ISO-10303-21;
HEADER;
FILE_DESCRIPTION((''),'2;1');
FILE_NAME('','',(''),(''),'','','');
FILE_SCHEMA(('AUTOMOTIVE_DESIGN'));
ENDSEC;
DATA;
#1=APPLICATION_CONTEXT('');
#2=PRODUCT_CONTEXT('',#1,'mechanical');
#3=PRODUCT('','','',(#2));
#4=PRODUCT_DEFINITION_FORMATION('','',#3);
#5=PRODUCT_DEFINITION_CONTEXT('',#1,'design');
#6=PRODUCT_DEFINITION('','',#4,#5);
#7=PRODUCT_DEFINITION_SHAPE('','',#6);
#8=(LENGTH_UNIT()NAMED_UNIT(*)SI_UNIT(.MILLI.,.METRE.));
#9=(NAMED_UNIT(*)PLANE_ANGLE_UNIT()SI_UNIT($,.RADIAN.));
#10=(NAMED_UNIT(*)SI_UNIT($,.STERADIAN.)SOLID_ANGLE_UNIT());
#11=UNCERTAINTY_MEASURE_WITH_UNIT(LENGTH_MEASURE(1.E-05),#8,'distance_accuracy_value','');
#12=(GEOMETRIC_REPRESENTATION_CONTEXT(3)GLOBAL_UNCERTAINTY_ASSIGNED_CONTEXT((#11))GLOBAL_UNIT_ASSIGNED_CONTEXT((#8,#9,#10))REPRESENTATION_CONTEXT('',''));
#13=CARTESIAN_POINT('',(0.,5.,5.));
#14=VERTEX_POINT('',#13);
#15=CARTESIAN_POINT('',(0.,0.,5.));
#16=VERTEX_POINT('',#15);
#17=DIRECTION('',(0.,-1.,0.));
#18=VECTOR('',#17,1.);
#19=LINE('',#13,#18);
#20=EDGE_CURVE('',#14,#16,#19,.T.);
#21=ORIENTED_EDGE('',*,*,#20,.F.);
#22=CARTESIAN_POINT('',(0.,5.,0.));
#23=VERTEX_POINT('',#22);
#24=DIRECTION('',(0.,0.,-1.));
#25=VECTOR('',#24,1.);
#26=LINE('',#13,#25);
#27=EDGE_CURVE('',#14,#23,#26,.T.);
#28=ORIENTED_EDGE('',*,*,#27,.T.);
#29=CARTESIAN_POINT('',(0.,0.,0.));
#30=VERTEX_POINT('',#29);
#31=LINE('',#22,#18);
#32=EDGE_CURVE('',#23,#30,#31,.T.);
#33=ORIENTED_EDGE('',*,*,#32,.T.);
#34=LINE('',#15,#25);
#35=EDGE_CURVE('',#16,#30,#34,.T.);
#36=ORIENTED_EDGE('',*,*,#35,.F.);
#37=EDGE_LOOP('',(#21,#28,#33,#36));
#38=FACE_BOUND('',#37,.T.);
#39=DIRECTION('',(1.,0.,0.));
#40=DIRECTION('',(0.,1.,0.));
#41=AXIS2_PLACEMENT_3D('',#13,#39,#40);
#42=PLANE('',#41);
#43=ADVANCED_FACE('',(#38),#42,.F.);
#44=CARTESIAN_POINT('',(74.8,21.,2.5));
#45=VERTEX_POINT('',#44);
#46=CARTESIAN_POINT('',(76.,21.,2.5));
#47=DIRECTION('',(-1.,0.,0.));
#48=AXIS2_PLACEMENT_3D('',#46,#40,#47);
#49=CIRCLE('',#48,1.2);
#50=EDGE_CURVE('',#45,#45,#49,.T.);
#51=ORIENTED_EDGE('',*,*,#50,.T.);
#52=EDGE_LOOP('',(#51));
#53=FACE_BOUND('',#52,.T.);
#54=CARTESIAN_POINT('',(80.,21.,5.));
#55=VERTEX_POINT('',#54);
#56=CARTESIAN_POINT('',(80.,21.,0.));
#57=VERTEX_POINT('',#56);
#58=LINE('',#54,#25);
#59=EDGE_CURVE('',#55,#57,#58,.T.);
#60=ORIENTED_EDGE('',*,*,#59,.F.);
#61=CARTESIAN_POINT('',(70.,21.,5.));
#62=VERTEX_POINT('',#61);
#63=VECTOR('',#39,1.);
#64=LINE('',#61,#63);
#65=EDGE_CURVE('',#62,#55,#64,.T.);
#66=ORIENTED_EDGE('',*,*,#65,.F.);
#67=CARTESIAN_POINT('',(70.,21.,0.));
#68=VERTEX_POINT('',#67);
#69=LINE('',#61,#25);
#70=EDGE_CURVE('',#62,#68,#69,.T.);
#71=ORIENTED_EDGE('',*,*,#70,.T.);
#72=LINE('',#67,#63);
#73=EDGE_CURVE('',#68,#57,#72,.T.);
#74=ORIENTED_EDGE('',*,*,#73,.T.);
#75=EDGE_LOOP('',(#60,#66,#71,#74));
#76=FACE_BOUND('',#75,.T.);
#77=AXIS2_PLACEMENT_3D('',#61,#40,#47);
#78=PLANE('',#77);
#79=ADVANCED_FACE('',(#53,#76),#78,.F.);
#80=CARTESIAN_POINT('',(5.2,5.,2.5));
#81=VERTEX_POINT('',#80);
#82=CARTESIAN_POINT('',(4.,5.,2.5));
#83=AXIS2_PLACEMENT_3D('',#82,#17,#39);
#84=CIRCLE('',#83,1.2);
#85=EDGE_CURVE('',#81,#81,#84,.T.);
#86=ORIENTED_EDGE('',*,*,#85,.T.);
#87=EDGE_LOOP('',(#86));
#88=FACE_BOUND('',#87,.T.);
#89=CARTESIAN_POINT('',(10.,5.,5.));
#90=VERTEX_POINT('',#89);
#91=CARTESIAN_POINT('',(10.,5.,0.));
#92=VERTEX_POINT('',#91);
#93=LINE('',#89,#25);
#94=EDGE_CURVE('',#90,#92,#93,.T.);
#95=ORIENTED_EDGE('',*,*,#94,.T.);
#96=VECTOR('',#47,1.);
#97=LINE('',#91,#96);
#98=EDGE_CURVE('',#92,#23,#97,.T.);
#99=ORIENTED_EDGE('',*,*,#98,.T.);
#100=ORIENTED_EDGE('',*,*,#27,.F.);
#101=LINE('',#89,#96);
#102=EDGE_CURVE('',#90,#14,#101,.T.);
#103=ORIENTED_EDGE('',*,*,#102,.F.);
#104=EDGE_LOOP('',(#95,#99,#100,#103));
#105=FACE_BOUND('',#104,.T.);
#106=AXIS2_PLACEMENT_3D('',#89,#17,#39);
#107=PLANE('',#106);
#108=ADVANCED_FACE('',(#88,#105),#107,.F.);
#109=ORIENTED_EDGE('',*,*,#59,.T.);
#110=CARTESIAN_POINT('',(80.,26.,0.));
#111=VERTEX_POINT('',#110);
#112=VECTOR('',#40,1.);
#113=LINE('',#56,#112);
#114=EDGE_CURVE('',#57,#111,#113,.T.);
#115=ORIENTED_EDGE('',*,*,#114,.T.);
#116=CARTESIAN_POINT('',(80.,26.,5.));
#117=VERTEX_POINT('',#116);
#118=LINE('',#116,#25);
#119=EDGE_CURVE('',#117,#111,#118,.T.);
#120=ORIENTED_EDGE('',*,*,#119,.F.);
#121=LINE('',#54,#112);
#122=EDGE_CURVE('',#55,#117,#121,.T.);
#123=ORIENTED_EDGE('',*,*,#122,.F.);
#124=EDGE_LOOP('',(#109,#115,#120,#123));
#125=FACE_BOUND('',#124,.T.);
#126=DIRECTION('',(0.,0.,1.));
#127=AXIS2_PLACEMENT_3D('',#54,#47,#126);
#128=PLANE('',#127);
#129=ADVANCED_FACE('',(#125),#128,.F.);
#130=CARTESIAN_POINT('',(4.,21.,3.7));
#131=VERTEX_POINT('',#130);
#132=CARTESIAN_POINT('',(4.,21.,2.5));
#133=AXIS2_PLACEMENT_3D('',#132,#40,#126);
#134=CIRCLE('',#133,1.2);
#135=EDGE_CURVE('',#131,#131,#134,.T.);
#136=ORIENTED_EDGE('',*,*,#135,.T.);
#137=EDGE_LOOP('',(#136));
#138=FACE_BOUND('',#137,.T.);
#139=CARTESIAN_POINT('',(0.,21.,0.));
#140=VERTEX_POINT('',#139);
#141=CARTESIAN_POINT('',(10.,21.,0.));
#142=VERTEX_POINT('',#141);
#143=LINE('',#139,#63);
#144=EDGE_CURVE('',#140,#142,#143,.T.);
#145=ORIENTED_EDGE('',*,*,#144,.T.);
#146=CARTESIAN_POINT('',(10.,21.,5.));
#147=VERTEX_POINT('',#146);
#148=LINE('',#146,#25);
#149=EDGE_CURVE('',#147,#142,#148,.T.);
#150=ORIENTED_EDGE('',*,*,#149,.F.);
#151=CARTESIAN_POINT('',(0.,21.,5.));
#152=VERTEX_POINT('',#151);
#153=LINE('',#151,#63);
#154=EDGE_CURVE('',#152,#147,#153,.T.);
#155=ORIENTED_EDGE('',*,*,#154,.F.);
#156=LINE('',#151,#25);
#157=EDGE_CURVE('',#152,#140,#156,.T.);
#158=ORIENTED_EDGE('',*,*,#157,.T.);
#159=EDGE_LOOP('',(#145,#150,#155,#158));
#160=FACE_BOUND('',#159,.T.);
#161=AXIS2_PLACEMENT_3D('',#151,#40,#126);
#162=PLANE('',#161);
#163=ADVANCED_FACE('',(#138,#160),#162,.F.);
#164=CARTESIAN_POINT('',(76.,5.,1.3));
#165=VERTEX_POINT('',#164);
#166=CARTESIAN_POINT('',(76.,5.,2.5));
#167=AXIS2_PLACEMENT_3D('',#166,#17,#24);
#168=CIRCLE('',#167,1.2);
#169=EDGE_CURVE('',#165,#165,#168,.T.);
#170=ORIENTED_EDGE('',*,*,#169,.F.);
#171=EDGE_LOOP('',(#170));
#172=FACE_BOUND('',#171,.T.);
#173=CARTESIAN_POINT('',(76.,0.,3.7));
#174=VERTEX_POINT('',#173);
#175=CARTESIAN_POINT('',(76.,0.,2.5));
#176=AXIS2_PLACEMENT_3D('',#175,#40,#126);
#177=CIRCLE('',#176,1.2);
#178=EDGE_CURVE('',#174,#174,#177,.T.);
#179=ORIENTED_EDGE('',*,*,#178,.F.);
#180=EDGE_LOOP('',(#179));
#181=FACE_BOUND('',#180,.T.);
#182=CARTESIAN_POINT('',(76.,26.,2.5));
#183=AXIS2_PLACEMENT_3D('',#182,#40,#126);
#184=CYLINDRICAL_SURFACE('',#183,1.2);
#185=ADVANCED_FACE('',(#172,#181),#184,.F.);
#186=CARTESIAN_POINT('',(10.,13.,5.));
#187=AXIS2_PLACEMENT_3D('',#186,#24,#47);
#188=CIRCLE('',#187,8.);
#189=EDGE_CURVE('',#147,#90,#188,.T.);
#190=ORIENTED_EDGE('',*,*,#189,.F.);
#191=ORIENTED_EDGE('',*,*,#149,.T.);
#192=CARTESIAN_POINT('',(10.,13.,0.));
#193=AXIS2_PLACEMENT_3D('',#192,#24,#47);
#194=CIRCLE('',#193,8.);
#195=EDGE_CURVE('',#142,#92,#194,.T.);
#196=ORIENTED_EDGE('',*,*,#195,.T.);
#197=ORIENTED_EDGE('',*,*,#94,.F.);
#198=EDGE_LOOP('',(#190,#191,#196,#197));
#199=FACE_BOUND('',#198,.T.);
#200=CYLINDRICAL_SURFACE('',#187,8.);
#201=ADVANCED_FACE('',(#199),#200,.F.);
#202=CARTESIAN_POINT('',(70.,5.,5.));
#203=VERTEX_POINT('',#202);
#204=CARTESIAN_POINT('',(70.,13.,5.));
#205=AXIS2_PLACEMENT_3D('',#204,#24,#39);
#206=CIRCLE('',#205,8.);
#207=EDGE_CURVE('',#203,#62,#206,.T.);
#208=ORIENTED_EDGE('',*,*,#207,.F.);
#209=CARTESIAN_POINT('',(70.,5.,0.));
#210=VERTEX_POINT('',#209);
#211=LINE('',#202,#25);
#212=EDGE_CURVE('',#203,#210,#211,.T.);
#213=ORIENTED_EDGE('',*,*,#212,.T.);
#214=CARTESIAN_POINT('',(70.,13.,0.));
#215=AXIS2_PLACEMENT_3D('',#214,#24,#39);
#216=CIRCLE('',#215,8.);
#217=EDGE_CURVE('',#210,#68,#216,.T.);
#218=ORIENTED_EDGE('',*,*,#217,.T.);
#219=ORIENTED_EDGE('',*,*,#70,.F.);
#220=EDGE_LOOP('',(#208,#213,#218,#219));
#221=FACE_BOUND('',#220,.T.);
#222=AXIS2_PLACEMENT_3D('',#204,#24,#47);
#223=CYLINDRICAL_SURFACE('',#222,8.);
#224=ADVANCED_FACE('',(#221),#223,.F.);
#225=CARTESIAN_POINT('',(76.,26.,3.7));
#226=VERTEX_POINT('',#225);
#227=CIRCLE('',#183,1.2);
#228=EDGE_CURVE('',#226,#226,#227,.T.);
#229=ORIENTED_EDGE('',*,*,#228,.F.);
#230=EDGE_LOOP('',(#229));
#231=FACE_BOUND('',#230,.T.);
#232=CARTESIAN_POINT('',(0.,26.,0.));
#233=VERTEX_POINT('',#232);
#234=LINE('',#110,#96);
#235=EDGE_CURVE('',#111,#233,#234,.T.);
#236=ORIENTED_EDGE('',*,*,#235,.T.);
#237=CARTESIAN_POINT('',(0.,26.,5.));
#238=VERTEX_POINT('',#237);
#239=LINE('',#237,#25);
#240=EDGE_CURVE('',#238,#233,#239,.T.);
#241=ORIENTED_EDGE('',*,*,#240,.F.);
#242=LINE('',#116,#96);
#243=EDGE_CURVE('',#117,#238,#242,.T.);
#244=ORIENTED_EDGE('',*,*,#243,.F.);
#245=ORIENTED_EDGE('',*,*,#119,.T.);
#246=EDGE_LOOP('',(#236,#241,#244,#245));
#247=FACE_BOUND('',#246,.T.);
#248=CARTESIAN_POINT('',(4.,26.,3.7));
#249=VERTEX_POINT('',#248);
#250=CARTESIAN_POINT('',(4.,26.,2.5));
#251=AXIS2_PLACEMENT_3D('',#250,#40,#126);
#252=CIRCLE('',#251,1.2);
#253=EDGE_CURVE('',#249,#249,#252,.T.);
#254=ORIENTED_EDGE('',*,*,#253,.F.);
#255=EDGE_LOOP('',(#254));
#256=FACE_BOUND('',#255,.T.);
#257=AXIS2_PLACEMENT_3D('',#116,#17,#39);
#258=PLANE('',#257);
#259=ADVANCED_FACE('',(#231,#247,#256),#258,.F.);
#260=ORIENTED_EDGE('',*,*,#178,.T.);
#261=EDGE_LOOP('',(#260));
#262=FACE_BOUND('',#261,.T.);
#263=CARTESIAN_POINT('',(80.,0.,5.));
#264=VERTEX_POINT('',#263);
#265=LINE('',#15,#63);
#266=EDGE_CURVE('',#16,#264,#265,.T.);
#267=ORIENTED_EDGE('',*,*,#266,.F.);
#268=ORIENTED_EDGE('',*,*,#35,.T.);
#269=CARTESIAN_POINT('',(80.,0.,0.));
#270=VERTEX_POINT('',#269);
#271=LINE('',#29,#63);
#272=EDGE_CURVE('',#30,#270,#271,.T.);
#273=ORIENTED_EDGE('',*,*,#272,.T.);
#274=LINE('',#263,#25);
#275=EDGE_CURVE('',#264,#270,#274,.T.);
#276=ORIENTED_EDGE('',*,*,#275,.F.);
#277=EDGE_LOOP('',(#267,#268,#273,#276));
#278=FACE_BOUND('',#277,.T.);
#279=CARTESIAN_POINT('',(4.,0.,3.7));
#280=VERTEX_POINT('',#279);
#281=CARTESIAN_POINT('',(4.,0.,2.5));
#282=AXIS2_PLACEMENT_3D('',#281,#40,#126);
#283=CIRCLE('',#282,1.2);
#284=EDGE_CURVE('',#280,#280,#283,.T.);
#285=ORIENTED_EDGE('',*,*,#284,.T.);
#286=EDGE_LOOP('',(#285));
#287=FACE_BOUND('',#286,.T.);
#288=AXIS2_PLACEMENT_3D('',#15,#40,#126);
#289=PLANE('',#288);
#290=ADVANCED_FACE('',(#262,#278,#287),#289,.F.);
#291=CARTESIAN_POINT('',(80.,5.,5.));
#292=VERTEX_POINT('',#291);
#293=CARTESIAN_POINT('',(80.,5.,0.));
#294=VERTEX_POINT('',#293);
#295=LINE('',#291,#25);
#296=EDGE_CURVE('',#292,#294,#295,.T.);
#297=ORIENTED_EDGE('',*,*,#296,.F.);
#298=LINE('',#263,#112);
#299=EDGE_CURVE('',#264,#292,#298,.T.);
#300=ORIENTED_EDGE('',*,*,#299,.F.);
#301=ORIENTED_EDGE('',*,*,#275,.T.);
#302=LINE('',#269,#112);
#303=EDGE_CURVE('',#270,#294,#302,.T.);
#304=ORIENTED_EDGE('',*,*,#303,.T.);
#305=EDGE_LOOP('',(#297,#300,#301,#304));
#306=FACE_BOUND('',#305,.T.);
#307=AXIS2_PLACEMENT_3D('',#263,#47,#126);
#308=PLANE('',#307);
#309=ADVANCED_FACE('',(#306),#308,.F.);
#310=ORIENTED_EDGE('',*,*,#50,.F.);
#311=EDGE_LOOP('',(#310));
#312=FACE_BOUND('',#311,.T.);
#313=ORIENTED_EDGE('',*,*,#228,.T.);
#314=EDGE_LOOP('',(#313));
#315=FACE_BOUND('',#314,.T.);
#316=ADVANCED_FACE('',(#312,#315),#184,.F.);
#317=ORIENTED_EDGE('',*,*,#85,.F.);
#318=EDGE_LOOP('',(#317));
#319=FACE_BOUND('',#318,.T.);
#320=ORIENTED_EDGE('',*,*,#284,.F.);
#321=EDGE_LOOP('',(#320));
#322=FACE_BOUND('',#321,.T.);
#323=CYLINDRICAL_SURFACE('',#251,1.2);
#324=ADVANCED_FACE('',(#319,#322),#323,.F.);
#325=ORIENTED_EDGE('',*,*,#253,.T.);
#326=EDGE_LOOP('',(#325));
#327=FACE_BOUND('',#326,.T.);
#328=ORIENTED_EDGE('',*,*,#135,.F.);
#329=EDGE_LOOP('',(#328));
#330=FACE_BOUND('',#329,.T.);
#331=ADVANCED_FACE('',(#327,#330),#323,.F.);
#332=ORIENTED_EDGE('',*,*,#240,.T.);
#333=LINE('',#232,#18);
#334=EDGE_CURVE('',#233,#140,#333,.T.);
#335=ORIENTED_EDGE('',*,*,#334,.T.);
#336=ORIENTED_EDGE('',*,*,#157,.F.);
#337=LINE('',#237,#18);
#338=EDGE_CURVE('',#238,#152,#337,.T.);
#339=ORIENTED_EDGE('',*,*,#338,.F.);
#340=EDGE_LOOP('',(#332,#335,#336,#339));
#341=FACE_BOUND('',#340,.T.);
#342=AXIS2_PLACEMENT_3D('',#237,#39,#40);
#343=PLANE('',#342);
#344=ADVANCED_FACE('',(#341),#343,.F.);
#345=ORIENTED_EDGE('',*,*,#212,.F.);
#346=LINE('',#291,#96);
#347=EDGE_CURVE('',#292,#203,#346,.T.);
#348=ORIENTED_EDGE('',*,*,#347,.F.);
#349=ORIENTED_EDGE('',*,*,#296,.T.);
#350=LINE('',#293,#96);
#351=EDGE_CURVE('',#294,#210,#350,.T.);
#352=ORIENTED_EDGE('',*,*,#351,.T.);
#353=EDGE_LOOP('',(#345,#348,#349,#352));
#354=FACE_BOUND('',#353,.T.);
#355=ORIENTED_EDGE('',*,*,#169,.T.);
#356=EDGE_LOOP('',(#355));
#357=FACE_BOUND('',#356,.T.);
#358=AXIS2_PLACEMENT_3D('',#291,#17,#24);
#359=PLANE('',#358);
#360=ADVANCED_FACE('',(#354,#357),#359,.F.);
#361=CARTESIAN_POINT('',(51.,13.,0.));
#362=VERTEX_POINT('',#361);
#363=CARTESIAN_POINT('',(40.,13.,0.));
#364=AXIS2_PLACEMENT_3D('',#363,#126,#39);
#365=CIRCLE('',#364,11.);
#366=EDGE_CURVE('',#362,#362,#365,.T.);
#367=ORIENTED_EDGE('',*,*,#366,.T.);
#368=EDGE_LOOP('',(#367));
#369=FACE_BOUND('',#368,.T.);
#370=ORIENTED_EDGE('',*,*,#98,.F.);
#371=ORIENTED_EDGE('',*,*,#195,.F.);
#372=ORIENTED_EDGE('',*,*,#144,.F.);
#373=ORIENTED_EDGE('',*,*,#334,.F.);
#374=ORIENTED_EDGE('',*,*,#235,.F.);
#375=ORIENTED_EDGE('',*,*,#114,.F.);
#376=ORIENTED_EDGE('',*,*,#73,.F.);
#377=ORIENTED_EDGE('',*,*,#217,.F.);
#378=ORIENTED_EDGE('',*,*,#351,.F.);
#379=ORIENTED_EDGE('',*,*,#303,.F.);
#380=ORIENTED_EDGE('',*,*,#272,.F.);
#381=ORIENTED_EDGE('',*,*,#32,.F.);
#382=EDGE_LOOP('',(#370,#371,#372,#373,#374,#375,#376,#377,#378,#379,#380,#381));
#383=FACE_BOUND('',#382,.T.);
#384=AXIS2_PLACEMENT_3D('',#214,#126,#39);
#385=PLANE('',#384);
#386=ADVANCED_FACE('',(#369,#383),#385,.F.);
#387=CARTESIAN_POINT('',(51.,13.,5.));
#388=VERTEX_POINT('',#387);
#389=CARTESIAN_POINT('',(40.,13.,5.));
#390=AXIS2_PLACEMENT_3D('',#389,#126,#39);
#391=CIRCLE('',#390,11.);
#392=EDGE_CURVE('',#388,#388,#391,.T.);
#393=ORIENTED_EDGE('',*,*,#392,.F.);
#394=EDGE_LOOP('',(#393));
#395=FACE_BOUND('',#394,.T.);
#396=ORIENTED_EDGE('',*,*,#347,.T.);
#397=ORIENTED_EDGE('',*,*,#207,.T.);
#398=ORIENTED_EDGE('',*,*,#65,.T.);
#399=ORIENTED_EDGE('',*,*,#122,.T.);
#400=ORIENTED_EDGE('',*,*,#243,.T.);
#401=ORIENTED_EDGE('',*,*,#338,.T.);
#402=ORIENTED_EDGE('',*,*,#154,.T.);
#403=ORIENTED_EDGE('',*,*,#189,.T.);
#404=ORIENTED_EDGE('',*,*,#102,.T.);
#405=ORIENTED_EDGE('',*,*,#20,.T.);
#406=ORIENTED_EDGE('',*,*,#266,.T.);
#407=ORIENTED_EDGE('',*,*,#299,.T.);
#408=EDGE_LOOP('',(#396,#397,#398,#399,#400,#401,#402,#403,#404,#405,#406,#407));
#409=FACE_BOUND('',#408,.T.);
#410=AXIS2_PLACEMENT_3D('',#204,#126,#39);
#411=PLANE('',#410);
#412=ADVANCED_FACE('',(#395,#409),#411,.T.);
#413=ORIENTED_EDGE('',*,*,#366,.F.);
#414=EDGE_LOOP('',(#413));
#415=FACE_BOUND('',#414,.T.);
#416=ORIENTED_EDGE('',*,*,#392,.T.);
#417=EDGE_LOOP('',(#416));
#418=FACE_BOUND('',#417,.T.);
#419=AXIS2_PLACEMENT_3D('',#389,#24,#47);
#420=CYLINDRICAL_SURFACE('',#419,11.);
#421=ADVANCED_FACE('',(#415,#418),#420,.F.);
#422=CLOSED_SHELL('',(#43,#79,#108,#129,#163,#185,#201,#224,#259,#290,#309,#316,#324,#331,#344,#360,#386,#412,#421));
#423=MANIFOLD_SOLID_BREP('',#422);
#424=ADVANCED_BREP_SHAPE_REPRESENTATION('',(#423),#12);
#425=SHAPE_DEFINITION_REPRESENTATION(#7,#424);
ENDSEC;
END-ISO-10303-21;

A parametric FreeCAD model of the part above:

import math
import FreeCAD as App
import Part
import Sketcher
from FreeCAD import Vector

doc = App.newDocument("Part")
body = doc.addObject("PartDesign::Body", "Body")

# Sketch on XY plane
sketch1 = doc.addObject("Sketcher::SketchObject", "Sketch")
body.addObject(sketch1)
sketch1.AttachmentSupport = (doc.XY_Plane, [""])
sketch1.MapMode = "FlatFace"
sketch1.addGeometry(Part.LineSegment(Vector(0, 0, 0), Vector(80, 0, 0)), False)
sketch1.addGeometry(Part.LineSegment(Vector(80, 0, 0), Vector(80, 5, 0)), False)
sketch1.addGeometry(Part.LineSegment(Vector(80, 5, 0), Vector(70, 5, 0)), False)
sketch1.addGeometry(Part.ArcOfCircle(Part.Circle(Vector(70, 13, 0), Vector(0, 0, 1), 8), math.radians(90), math.radians(270)), False)
sketch1.addGeometry(Part.LineSegment(Vector(70, 21, 0), Vector(80, 21, 0)), False)
sketch1.addGeometry(Part.LineSegment(Vector(80, 21, 0), Vector(80, 26, 0)), False)
sketch1.addGeometry(Part.LineSegment(Vector(80, 26, 0), Vector(0, 26, 0)), False)
sketch1.addGeometry(Part.LineSegment(Vector(0, 26, 0), Vector(0, 21, 0)), False)
sketch1.addGeometry(Part.LineSegment(Vector(0, 21, 0), Vector(10, 21, 0)), False)
sketch1.addGeometry(Part.ArcOfCircle(Part.Circle(Vector(10, 13, 0), Vector(0, 0, 1), 8), math.radians(-90), math.radians(90)), False)
sketch1.addGeometry(Part.LineSegment(Vector(10, 5, 0), Vector(0, 5, 0)), False)
sketch1.addGeometry(Part.LineSegment(Vector(0, 5, 0), Vector(0, 0, 0)), False)
sketch1.addGeometry(Part.Circle(Vector(40, 13, 0), Vector(0, 0, 1), 11), False)
sketch1.addConstraint(Sketcher.Constraint("Coincident", 0, 2, 1, 1))
sketch1.addConstraint(Sketcher.Constraint("Coincident", 1, 2, 2, 1))
sketch1.addConstraint(Sketcher.Constraint("Tangent", 2, 2, 3, 2))
sketch1.addConstraint(Sketcher.Constraint("Tangent", 3, 1, 4, 1))
sketch1.addConstraint(Sketcher.Constraint("Coincident", 4, 2, 5, 1))
sketch1.addConstraint(Sketcher.Constraint("Coincident", 5, 2, 6, 1))
sketch1.addConstraint(Sketcher.Constraint("Coincident", 6, 2, 7, 1))
sketch1.addConstraint(Sketcher.Constraint("Coincident", 7, 2, 8, 1))
sketch1.addConstraint(Sketcher.Constraint("Tangent", 8, 2, 9, 2))
sketch1.addConstraint(Sketcher.Constraint("Tangent", 9, 1, 10, 1))
sketch1.addConstraint(Sketcher.Constraint("Coincident", 10, 2, 11, 1))
sketch1.addConstraint(Sketcher.Constraint("Coincident", 11, 2, 0, 1))
sketch1.addConstraint(Sketcher.Constraint("Horizontal", 0))
sketch1.addConstraint(Sketcher.Constraint("Vertical", 1))
sketch1.addConstraint(Sketcher.Constraint("Horizontal", 2))
sketch1.addConstraint(Sketcher.Constraint("Horizontal", 4))
sketch1.addConstraint(Sketcher.Constraint("Vertical", 5))
sketch1.addConstraint(Sketcher.Constraint("Horizontal", 6))
sketch1.addConstraint(Sketcher.Constraint("Vertical", 7))
sketch1.addConstraint(Sketcher.Constraint("Horizontal", 8))
sketch1.addConstraint(Sketcher.Constraint("Horizontal", 10))
sketch1.addConstraint(Sketcher.Constraint("Vertical", 11))
sketch1.addConstraint(Sketcher.Constraint("Coincident", 11, 2, -1, 1))
sketch1.addConstraint(Sketcher.Constraint("Equal", 3, 9))
sketch1.addConstraint(Sketcher.Constraint("PointOnObject", 6, 2, -2))
sketch1.addConstraint(Sketcher.Constraint("Horizontal", 3, 3, 9, 3))
sketch1.addConstraint(Sketcher.Constraint("Horizontal", 9, 3, 12, 3))
sketch1.addConstraint(Sketcher.Constraint("Vertical", 1, 2, 4, 2))
sketch1.addConstraint(Sketcher.Constraint("Equal", 4, 8))
sketch1.addConstraint(Sketcher.Constraint("Equal", 1, 5))
sketch1.addConstraint(Sketcher.Constraint("Diameter", 12, 22.0))
sketch1.addConstraint(Sketcher.Constraint("Radius", 3, 8.0))
sketch1.addConstraint(Sketcher.Constraint("DistanceX", 0, 1, 0, 2, 80.0))
sketch1.addConstraint(Sketcher.Constraint("DistanceX", 2, 2, 2, 1, 10.0))
sketch1.addConstraint(Sketcher.Constraint("DistanceY", 1, 1, 1, 2, 5.0))
sketch1.addConstraint(Sketcher.Constraint("DistanceX", -1, 1, 12, 3, 40.0))
pad1 = doc.addObject("PartDesign::Pad", "Pad")
body.addObject(pad1)
pad1.Profile = sketch1
pad1.Length = 5

# Sketch on XZ plane
sketch2 = doc.addObject("Sketcher::SketchObject", "Sketch001")
body.addObject(sketch2)
sketch2.AttachmentSupport = (doc.XZ_Plane, [""])
sketch2.MapMode = "FlatFace"
sketch2.AttachmentOffset = App.Placement(Vector(0, 0, -26), App.Rotation())
sketch2.addGeometry(Part.Circle(Vector(76, 2.5, 0), Vector(0, 0, 1), 1.2), False)
sketch2.addGeometry(Part.Circle(Vector(4, 2.5, 0), Vector(0, 0, 1), 1.2), False)
sketch2.addConstraint(Sketcher.Constraint("Equal", 0, 1))
sketch2.addConstraint(Sketcher.Constraint("Horizontal", 0, 3, 1, 3))
sketch2.addConstraint(Sketcher.Constraint("Diameter", 0, 2.4))
sketch2.addConstraint(Sketcher.Constraint("DistanceX", -1, 1, 0, 3, 76.0))
sketch2.addConstraint(Sketcher.Constraint("DistanceX", -1, 1, 1, 3, 4.0))
sketch2.addConstraint(Sketcher.Constraint("DistanceY", -1, 1, 0, 3, 2.5))
doc.recompute()
hole = doc.addObject("PartDesign::Hole", "Hole")
body.addObject(hole)
hole.Profile = sketch2
hole.ThreadType = "None"
hole.Diameter = 2.4
hole.DepthType = "ThroughAll"
hole.Reversed = True

doc.recompute()
